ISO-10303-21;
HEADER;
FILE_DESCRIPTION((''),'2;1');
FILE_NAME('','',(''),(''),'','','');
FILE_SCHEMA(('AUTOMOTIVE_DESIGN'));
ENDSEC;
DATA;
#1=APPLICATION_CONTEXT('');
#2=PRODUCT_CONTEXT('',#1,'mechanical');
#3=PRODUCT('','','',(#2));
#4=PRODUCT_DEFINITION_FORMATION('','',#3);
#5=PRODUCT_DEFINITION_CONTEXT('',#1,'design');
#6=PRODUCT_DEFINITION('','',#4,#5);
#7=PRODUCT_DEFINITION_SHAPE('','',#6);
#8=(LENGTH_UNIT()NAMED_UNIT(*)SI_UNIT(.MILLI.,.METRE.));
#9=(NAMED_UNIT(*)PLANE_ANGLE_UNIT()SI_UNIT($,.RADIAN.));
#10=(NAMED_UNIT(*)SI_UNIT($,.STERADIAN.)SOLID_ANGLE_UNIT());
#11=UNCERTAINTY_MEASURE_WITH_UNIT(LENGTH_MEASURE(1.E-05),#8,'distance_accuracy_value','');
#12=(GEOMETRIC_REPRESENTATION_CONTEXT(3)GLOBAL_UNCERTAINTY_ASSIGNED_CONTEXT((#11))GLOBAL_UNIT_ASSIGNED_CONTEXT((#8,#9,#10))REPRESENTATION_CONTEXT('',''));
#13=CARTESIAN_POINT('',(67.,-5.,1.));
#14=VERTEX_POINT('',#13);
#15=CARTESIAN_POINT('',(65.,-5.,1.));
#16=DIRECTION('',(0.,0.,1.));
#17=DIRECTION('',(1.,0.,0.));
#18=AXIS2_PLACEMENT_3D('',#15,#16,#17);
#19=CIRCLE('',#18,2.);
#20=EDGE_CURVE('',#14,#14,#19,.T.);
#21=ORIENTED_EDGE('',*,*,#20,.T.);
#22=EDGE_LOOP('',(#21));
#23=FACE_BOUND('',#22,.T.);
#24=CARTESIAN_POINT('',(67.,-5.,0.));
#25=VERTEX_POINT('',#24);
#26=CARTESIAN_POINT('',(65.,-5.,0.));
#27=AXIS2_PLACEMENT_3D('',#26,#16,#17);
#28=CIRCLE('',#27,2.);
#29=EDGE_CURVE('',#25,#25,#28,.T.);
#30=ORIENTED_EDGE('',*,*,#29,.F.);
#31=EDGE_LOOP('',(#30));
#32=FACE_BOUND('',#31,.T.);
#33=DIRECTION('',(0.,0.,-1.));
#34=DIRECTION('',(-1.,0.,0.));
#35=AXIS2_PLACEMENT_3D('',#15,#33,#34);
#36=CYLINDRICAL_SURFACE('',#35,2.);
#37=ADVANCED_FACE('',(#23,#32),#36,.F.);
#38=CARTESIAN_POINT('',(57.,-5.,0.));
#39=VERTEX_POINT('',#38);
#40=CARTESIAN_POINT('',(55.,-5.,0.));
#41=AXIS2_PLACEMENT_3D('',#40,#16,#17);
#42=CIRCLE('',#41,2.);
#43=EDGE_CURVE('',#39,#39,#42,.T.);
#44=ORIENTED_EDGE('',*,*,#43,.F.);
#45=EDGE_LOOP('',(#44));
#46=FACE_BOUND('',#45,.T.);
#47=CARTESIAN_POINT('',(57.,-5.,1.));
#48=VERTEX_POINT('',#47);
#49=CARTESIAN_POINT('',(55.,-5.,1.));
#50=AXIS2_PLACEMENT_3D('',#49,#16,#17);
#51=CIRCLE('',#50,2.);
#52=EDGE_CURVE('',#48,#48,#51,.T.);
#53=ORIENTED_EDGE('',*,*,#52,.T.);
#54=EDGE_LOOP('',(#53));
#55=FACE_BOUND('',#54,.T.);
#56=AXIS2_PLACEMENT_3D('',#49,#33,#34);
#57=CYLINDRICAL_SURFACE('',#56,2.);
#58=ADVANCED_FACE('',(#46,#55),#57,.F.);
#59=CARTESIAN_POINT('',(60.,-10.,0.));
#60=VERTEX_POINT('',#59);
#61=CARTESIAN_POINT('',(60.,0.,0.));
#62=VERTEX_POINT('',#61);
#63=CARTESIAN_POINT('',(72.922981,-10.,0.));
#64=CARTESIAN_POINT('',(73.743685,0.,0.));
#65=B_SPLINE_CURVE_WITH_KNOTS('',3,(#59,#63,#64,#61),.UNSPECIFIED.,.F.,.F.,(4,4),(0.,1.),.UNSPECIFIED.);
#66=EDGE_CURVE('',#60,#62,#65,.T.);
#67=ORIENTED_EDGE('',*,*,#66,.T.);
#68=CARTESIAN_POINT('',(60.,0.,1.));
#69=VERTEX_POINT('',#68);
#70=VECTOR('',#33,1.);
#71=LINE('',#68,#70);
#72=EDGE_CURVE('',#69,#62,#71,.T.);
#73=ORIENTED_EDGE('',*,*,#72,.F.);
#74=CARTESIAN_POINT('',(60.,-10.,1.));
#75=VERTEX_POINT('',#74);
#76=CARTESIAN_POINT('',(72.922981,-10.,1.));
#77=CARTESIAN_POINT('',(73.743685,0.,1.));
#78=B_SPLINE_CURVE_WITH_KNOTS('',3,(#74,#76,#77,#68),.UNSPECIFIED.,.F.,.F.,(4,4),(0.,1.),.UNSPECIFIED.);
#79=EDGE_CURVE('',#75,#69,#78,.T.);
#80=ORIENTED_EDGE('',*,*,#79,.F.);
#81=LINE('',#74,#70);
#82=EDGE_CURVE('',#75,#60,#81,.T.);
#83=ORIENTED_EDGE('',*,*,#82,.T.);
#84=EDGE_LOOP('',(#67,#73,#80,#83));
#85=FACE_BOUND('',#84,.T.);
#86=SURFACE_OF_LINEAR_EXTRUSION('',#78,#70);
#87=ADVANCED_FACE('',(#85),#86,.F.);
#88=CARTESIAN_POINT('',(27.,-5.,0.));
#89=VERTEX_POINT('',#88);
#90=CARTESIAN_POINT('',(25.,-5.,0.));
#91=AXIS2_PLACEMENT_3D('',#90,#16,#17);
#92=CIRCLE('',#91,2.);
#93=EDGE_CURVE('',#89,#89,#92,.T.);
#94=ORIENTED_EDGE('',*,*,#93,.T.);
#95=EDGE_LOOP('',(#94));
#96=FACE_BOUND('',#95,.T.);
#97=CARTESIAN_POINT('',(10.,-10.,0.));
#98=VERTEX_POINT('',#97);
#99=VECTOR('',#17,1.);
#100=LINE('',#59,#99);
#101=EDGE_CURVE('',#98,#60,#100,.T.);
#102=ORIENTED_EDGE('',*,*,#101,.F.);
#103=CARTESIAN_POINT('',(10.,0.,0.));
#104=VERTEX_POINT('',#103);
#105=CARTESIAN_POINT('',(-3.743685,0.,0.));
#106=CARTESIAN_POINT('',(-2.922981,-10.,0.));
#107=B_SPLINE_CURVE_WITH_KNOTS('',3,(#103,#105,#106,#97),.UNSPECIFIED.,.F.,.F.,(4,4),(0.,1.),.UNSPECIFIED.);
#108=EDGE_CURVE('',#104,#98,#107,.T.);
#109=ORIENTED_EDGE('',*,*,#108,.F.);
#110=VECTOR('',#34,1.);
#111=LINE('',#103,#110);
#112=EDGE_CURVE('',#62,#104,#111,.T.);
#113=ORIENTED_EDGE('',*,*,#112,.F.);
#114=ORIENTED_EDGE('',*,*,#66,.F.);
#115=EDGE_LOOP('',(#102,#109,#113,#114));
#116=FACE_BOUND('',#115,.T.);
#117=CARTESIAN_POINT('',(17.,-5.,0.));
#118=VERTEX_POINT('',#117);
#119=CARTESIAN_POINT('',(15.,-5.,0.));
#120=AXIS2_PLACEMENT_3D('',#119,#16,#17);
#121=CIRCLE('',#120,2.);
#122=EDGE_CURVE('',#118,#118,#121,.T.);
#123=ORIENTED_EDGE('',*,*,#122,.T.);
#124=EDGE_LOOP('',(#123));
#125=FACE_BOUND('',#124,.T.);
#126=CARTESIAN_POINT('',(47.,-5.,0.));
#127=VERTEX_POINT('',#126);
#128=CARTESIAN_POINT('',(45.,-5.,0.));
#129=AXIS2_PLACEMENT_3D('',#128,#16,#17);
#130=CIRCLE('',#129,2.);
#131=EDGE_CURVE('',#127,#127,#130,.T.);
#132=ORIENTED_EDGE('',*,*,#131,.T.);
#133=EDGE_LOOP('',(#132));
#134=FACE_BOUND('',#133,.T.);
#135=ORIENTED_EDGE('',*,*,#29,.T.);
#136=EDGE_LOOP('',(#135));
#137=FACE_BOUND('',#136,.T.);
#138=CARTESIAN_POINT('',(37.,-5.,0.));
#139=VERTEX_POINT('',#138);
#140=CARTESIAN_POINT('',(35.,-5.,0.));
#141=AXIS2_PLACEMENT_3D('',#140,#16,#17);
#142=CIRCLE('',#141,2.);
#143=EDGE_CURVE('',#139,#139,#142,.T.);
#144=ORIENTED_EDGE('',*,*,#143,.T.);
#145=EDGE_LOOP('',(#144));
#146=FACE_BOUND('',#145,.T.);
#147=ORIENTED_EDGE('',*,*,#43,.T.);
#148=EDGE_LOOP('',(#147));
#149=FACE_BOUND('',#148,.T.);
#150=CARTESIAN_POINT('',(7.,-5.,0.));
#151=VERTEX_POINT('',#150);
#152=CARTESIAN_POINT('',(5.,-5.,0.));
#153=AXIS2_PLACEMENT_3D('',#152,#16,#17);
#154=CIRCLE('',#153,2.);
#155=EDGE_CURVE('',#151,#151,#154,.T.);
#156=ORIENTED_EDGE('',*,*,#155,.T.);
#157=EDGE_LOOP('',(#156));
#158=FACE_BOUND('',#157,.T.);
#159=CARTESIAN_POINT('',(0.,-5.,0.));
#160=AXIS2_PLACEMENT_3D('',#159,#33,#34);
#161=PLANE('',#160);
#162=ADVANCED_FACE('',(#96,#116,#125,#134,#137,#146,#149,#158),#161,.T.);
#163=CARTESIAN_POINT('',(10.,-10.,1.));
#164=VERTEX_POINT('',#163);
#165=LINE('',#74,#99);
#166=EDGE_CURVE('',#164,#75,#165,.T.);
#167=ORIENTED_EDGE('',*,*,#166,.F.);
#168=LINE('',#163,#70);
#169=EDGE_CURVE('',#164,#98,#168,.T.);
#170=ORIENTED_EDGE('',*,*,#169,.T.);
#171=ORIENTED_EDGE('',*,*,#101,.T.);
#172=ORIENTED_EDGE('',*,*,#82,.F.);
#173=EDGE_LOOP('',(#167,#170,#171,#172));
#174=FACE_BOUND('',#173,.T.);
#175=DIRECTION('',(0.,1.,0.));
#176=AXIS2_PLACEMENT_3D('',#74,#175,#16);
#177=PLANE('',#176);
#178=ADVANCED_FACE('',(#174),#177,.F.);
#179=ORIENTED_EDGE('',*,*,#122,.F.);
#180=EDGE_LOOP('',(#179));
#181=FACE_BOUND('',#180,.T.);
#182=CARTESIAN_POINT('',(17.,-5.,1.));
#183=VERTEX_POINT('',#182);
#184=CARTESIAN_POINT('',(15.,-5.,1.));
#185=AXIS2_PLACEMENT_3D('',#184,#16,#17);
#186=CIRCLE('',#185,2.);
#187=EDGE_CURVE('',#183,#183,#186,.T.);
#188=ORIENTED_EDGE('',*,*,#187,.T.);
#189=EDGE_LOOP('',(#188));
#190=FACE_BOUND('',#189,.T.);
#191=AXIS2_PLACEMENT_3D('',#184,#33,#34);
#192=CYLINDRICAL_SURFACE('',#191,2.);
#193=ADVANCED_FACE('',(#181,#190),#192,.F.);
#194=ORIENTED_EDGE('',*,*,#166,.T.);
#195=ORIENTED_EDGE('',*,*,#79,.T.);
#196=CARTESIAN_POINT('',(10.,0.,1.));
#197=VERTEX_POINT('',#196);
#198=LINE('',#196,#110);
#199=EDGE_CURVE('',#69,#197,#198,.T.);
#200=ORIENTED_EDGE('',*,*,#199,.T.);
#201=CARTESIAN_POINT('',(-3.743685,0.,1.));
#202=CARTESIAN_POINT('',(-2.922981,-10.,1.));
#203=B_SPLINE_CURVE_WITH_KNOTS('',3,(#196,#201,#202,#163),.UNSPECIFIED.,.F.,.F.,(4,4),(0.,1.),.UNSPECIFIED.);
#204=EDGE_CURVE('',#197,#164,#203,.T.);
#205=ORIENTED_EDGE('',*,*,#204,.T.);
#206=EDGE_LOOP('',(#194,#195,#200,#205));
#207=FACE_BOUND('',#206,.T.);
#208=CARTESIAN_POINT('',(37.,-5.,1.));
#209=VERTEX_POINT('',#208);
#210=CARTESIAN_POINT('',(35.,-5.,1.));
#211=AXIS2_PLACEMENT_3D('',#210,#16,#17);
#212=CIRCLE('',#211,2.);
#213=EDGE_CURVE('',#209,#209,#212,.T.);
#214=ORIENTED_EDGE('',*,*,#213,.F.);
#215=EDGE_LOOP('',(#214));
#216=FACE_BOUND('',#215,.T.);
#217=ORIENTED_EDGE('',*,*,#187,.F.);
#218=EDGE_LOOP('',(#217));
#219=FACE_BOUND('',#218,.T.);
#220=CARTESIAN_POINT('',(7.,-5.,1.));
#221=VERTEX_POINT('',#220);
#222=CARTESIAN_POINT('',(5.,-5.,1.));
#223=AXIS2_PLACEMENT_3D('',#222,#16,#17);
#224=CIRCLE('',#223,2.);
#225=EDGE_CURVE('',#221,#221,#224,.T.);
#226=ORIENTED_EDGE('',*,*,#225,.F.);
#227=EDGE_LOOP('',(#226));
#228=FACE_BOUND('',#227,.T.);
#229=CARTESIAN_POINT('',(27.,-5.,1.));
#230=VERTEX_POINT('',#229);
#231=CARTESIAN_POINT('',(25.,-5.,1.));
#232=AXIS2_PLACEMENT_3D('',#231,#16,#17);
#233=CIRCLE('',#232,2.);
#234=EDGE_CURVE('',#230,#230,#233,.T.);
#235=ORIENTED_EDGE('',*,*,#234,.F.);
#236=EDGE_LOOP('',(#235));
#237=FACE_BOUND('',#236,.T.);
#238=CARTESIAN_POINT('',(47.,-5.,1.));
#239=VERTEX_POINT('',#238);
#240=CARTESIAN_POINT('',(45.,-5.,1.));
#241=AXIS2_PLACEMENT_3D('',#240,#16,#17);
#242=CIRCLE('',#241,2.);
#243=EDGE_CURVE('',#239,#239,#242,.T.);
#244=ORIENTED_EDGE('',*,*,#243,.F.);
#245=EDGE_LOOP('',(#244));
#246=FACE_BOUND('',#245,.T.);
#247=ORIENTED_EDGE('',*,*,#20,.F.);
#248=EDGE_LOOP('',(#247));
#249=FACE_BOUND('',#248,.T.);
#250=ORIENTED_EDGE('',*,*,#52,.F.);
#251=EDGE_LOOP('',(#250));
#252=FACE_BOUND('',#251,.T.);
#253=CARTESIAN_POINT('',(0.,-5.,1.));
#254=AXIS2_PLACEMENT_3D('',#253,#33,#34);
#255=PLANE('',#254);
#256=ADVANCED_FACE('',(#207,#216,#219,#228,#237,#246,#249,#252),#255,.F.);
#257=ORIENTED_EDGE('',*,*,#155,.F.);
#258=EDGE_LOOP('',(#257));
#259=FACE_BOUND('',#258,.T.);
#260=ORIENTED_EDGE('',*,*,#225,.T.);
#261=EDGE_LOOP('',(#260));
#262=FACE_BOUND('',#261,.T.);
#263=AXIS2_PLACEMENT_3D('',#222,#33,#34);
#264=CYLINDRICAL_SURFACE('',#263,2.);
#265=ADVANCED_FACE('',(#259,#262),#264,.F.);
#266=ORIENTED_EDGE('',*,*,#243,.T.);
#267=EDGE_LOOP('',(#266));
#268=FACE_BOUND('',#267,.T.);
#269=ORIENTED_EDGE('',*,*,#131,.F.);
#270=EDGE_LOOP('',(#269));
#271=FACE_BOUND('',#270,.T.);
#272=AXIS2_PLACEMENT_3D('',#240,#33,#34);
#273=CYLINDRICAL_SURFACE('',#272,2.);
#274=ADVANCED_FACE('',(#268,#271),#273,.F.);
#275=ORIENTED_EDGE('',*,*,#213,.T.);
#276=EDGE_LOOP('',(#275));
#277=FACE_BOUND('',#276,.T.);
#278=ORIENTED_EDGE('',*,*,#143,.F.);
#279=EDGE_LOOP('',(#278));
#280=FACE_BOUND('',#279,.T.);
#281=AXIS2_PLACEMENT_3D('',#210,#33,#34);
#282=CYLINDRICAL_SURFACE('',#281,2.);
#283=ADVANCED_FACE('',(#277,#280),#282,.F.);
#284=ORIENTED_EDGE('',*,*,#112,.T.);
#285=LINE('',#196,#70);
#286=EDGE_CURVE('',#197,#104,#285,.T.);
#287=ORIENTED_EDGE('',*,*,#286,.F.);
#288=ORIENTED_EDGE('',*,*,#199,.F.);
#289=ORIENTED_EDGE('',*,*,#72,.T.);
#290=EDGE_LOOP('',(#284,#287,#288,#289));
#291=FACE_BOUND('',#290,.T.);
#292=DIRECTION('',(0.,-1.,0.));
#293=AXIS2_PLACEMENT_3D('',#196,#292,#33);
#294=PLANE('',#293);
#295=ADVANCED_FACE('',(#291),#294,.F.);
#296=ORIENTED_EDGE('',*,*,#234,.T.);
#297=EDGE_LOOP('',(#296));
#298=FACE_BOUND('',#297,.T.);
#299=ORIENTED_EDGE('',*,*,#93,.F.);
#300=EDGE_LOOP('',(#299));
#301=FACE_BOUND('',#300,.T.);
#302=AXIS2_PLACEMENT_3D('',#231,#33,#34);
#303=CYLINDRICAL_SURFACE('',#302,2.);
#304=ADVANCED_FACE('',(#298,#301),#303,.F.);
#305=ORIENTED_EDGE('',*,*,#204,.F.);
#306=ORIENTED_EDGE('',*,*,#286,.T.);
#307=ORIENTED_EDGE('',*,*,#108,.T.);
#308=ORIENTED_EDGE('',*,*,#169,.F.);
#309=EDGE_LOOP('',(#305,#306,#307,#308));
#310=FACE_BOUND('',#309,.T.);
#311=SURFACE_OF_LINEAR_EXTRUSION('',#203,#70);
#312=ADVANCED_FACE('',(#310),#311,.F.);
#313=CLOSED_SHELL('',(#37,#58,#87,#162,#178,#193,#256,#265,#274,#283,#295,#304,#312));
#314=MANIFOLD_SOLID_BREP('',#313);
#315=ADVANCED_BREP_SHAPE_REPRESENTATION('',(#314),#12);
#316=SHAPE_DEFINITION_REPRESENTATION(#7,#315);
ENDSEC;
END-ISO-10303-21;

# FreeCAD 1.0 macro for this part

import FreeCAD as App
import Part
import Sketcher

V = App.Vector
Q = App.Units.Quantity

doc = App.newDocument("Part")
body = doc.addObject("PartDesign::Body", "Body")

sketch1 = body.newObject("Sketcher::SketchObject", "Sketch")
sketch1.AttachmentSupport = (doc.getObject("XY_Plane"), [""])
sketch1.MapMode = "FlatFace"
sketch1.addGeometry([
    Part.LineSegment(V(60, 0, 0), V(10, 0, 0)),
    Part.BSplineCurve([V(10, 0, 0), V(-3.743685, 0, 0), V(-2.922981, -10, 0), V(10, -10, 0)], [4, 4], [0, 1], False, 3, [1, 1, 1, 1], False),
    Part.LineSegment(V(10, -10, 0), V(60, -10, 0)),
    Part.BSplineCurve([V(60, 0, 0), V(73.743685, 0, 0), V(72.922981, -10, 0), V(60, -10, 0)], [4, 4], [0, 1], False, 3, [1, 1, 1, 1], False),
    Part.Circle(V(65, -5, 0), V(0, 0, 1), 2),
    Part.Circle(V(55, -5, 0), V(0, 0, 1), 2),
    Part.Circle(V(45, -5, 0), V(0, 0, 1), 2),
    Part.Circle(V(35, -5, 0), V(0, 0, 1), 2),
    Part.Circle(V(25, -5, 0), V(0, 0, 1), 2),
    Part.Circle(V(15, -5, 0), V(0, 0, 1), 2),
    Part.Circle(V(5, -5, 0), V(0, 0, 1), 2),
], False)
sketch1.addConstraint([
    Sketcher.Constraint("Block", 1),
    Sketcher.Constraint("Block", 3),
    Sketcher.Constraint("Coincident", 0, 2, 1, 1),
    Sketcher.Constraint("Coincident", 1, 2, 2, 1),
    Sketcher.Constraint("Coincident", 2, 2, 3, 2),
    Sketcher.Constraint("Coincident", 3, 1, 0, 1),
    Sketcher.Constraint("Equal", 4, 5),
    Sketcher.Constraint("Equal", 5, 6),
    Sketcher.Constraint("Equal", 6, 7),
    Sketcher.Constraint("Equal", 7, 8),
    Sketcher.Constraint("Equal", 8, 9),
    Sketcher.Constraint("Equal", 9, 10),
    Sketcher.Constraint("Horizontal", 4, 3, 5, 3),
    Sketcher.Constraint("Horizontal", 5, 3, 6, 3),
    Sketcher.Constraint("Horizontal", 6, 3, 7, 3),
    Sketcher.Constraint("Horizontal", 7, 3, 8, 3),
    Sketcher.Constraint("Horizontal", 8, 3, 9, 3),
    Sketcher.Constraint("Horizontal", 9, 3, 10, 3),
    Sketcher.Constraint("Diameter", 4, Q("4 mm")),
    Sketcher.Constraint("DistanceX", -1, 1, 4, 3, Q("65 mm")),
    Sketcher.Constraint("DistanceY", 4, 3, -1, 1, Q("5 mm")),
    Sketcher.Constraint("DistanceX", -1, 1, 5, 3, Q("55 mm")),
    Sketcher.Constraint("DistanceX", -1, 1, 6, 3, Q("45 mm")),
    Sketcher.Constraint("DistanceX", -1, 1, 7, 3, Q("35 mm")),
    Sketcher.Constraint("DistanceX", -1, 1, 8, 3, Q("25 mm")),
    Sketcher.Constraint("DistanceX", -1, 1, 9, 3, Q("15 mm")),
    Sketcher.Constraint("DistanceX", -1, 1, 10, 3, Q("5 mm")),
])
pad1 = body.newObject("PartDesign::Pad", "Pad")
pad1.Profile = sketch1
pad1.Length = 1

doc.recompute()
